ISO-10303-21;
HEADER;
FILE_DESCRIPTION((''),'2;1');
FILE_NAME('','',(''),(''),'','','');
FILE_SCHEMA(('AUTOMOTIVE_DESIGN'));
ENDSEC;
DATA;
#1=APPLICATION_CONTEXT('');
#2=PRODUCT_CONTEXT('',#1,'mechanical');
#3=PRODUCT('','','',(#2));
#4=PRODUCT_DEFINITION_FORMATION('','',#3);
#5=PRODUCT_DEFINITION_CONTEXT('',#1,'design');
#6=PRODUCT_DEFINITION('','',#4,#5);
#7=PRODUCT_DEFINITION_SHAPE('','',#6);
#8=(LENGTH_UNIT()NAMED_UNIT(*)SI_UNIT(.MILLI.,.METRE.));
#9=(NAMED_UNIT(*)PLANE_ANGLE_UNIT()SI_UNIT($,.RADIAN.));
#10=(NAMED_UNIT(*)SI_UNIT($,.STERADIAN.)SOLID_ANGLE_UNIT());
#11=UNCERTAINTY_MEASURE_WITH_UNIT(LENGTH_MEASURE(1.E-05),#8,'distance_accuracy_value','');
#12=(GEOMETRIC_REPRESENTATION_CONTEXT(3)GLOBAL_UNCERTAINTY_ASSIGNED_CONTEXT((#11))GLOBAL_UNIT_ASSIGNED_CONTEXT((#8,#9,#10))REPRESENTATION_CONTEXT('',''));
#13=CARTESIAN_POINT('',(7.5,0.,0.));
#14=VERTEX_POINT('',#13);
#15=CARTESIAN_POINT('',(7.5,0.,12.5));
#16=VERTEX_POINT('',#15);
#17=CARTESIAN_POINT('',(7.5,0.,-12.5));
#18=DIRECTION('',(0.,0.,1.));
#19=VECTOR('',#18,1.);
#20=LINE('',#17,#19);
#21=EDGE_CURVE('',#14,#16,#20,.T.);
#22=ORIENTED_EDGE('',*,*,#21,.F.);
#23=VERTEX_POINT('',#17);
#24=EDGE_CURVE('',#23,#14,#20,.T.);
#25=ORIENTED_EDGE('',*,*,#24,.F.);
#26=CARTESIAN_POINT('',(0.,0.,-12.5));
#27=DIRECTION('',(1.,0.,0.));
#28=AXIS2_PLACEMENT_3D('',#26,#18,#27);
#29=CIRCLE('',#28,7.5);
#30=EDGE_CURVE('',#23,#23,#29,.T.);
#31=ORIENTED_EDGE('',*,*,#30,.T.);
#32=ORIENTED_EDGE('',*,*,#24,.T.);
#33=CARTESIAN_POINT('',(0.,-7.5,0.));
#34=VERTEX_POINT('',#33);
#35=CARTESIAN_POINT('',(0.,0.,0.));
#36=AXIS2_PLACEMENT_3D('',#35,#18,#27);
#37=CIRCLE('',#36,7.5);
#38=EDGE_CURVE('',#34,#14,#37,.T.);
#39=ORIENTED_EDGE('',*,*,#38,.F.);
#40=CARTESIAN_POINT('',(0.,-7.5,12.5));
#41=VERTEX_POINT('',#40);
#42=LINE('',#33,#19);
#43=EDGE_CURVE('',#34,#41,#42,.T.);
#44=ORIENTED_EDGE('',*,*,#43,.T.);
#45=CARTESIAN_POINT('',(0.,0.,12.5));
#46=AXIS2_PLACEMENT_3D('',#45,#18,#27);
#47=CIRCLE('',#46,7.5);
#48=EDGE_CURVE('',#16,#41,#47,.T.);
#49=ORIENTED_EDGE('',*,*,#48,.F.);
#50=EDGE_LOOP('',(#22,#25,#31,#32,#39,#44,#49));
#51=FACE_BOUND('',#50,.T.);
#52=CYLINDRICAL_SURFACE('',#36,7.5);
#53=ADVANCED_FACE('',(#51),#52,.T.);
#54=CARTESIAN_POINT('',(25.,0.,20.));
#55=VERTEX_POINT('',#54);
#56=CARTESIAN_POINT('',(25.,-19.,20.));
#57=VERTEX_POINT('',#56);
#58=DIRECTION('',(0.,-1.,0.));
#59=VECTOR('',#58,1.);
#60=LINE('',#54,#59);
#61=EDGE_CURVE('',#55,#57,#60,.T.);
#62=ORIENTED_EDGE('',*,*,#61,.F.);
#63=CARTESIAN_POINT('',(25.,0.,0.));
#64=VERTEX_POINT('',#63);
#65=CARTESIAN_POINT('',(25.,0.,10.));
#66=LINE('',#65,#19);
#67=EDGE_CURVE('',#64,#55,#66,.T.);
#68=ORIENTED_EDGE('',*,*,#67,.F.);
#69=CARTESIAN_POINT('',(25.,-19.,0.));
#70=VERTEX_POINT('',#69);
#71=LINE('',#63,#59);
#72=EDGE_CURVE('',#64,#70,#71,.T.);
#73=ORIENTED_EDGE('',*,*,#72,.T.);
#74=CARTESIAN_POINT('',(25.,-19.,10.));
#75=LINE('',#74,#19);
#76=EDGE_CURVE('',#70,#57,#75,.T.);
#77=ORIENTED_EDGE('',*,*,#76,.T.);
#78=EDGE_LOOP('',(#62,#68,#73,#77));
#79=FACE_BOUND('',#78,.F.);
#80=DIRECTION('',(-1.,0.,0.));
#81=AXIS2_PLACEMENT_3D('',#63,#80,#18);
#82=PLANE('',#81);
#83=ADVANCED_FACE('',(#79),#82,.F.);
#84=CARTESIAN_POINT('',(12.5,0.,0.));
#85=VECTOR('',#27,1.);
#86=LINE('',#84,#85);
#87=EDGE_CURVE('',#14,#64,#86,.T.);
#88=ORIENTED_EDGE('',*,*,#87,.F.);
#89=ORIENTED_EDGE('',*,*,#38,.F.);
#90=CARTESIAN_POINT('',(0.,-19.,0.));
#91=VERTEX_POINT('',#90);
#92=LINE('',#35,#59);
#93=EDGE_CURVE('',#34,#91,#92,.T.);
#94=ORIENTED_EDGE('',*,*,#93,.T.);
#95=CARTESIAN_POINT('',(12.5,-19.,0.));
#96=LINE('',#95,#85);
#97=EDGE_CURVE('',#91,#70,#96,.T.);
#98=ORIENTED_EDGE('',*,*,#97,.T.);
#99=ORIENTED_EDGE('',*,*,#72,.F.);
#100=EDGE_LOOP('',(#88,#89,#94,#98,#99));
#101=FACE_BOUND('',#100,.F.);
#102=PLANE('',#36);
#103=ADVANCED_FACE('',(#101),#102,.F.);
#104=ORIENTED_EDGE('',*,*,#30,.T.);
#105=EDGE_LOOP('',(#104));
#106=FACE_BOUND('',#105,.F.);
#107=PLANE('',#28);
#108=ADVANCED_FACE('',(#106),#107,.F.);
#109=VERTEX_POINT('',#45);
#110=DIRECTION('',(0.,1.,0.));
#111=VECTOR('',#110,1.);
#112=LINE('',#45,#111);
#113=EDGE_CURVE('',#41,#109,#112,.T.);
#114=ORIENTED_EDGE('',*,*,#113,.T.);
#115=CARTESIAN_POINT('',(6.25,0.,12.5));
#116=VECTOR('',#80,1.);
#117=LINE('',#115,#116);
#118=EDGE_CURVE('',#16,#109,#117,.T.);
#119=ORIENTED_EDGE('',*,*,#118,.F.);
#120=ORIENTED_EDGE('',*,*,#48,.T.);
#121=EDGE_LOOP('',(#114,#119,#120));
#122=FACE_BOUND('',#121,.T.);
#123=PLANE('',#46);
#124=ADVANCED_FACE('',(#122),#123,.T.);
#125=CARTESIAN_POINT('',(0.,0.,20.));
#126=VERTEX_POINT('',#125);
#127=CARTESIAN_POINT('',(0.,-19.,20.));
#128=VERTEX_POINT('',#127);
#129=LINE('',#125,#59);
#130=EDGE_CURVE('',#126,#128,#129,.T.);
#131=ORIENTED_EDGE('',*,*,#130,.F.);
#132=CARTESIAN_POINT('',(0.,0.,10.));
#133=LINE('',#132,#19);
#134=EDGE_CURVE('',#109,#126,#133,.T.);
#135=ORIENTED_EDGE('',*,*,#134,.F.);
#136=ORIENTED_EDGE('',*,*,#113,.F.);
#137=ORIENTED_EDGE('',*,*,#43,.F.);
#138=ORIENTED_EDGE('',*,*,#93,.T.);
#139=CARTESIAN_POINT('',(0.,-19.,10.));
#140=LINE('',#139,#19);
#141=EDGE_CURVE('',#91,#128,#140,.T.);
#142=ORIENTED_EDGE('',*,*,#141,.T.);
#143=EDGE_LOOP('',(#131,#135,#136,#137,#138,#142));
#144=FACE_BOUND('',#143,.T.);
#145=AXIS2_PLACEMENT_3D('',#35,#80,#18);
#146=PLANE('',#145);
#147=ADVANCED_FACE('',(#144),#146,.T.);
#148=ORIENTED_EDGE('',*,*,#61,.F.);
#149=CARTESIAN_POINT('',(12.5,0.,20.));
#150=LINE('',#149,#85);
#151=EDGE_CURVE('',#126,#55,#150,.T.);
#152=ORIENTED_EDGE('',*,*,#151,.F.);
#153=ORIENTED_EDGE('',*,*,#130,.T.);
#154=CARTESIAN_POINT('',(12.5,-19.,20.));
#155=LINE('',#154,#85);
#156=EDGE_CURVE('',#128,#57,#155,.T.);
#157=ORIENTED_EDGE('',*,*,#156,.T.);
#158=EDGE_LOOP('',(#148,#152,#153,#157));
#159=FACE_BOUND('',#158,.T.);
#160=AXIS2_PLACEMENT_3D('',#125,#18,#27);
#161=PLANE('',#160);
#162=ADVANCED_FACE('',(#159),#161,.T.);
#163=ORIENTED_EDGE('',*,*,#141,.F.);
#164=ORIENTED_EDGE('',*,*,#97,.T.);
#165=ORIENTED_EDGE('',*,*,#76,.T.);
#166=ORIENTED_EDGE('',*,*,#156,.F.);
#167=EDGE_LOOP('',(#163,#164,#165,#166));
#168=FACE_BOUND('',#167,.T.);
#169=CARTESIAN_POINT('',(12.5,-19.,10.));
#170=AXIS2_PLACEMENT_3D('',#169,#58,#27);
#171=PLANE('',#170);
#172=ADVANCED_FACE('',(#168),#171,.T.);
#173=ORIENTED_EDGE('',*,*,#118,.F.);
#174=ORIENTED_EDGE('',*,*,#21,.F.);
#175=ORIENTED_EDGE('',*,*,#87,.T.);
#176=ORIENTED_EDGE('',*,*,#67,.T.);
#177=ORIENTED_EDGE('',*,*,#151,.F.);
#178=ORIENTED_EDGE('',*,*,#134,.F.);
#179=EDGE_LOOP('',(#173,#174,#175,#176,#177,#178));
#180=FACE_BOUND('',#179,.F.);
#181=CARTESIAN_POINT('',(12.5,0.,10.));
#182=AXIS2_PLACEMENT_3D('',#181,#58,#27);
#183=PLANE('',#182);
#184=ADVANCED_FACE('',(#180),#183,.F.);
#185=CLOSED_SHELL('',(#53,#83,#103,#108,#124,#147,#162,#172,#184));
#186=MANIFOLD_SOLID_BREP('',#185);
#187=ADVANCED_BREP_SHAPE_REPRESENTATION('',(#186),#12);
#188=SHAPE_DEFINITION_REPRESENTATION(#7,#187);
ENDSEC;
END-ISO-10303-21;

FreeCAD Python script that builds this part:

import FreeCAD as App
import Part
import Sketcher

V = App.Vector

doc = App.newDocument("Part")
body = doc.addObject("PartDesign::Body", "Body")

# Sketch on XZ plane
sketch1 = body.newObject("Sketcher::SketchObject", "Sketch")
sketch1.AttachmentSupport = (doc.getObject("XZ_Plane"), [""])
sketch1.MapMode = "FlatFace"
sketch1.addGeometry([
    Part.LineSegment(V(0, 20, 0), V(0, 0, 0)),
    Part.LineSegment(V(0, 0, 0), V(25, 0, 0)),
    Part.LineSegment(V(25, 0, 0), V(25, 20, 0)),
    Part.LineSegment(V(25, 20, 0), V(0, 20, 0)),
], False)
sketch1.addConstraint([
    Sketcher.Constraint("Coincident", 0, 2, 1, 1),
    Sketcher.Constraint("Coincident", 1, 2, 2, 1),
    Sketcher.Constraint("Coincident", 2, 2, 3, 1),
    Sketcher.Constraint("Coincident", 3, 2, 0, 1),
    Sketcher.Constraint("Vertical", 0),
    Sketcher.Constraint("Horizontal", 1),
    Sketcher.Constraint("Vertical", 2),
    Sketcher.Constraint("Horizontal", 3),
    Sketcher.Constraint("Coincident", 0, 2, -1, 1),
    Sketcher.Constraint("DistanceX", 1, 1, 1, 2, 25.0),
    Sketcher.Constraint("DistanceY", 0, 2, 0, 1, 20.0),
])
pad1 = body.newObject("PartDesign::Pad", "Pad")
pad1.Profile = sketch1
pad1.Length = 19

# Sketch on XY plane
sketch2 = body.newObject("Sketcher::SketchObject", "Sketch001")
sketch2.AttachmentSupport = (doc.getObject("XY_Plane"), [""])
sketch2.MapMode = "FlatFace"
sketch2.addGeometry(Part.Circle(V(0, 0, 0), V(0, 0, 1), 8), False)
sketch2.addConstraint([
    Sketcher.Constraint("Coincident", 0, 3, -1, 1),
    Sketcher.Constraint("Diameter", 0, 15.0),
])
pad2 = body.newObject("PartDesign::Pad", "Pad001")
pad2.Profile = sketch2
pad2.Length = 25
pad2.Midplane = True

doc.recompute()
